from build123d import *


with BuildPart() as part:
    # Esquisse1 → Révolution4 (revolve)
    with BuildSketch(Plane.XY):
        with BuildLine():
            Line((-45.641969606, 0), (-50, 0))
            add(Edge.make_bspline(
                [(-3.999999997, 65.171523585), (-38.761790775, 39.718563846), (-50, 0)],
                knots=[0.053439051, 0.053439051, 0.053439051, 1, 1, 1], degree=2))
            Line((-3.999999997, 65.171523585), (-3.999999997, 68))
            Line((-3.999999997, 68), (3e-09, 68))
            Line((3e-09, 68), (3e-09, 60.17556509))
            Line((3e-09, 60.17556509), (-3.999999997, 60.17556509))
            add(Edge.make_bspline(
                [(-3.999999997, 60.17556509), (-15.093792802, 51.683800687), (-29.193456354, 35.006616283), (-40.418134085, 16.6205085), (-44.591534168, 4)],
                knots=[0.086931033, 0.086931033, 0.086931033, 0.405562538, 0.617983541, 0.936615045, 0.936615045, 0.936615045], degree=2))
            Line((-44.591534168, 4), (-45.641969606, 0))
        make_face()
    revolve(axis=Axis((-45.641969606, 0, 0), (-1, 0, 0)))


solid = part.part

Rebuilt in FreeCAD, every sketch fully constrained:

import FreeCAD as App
import Part
import Sketcher
from FreeCAD import Vector

doc = App.newDocument("Part")
body = doc.addObject("PartDesign::Body", "Body")

# Sketch on XY plane
sketch1 = doc.addObject("Sketcher::SketchObject", "Sketch")
body.addObject(sketch1)
sketch1.AttachmentSupport = (doc.XY_Plane, [""])
sketch1.MapMode = "FlatFace"
sketch1.addGeometry(Part.LineSegment(Vector(-50, 0, 0), Vector(-45.64197, 0, 0)), False)
sketch1.addGeometry(Part.LineSegment(Vector(-45.64197, 0, 0), Vector(-44.591534, 4, 0)), False)
sketch1.addGeometry(Part.BSplineCurve([Vector(-4, 60.175565, 0), Vector(-15.093793, 51.683801, 0), Vector(-29.193456, 35.006616, 0), Vector(-40.418134, 16.620508, 0), Vector(-44.591534, 4, 0)], [3, 1, 1, 3], [0.086931033, 0.405562538, 0.617983541, 0.936615045], False, 2, [1, 1, 1, 1, 1], False), False)
sketch1.addGeometry(Part.LineSegment(Vector(-4, 60.175565, 0), Vector(0, 60.175565, 0)), False)
sketch1.addGeometry(Part.LineSegment(Vector(0, 60.175565, 0), Vector(0, 68, 0)), False)
sketch1.addGeometry(Part.LineSegment(Vector(0, 68, 0), Vector(-4, 68, 0)), False)
sketch1.addGeometry(Part.LineSegment(Vector(-4, 68, 0), Vector(-4, 65.171524, 0)), False)
sketch1.addGeometry(Part.BSplineCurve([Vector(-4, 65.171524, 0), Vector(-38.761791, 39.718564, 0), Vector(-50, 0, 0)], [3, 3], [0.053439051, 1], False, 2, [1, 1, 1], False), False)
sketch1.addConstraint(Sketcher.Constraint("Block", 2))
sketch1.addConstraint(Sketcher.Constraint("Block", 7))
sketch1.addConstraint(Sketcher.Constraint("Coincident", 0, 2, 1, 1))
sketch1.addConstraint(Sketcher.Constraint("Coincident", 1, 2, 2, 2))
sketch1.addConstraint(Sketcher.Constraint("Coincident", 2, 1, 3, 1))
sketch1.addConstraint(Sketcher.Constraint("Coincident", 3, 2, 4, 1))
sketch1.addConstraint(Sketcher.Constraint("Coincident", 4, 2, 5, 1))
sketch1.addConstraint(Sketcher.Constraint("Coincident", 5, 2, 6, 1))
sketch1.addConstraint(Sketcher.Constraint("Coincident", 6, 2, 7, 1))
sketch1.addConstraint(Sketcher.Constraint("Coincident", 7, 2, 0, 1))
sketch1.addConstraint(Sketcher.Constraint("Horizontal", 0))
sketch1.addConstraint(Sketcher.Constraint("Horizontal", 3))
sketch1.addConstraint(Sketcher.Constraint("Vertical", 4))
sketch1.addConstraint(Sketcher.Constraint("Horizontal", 5))
sketch1.addConstraint(Sketcher.Constraint("Vertical", 6))
sketch1.addConstraint(Sketcher.Constraint("PointOnObject", 3, 2, -2))
sketch1.addConstraint(Sketcher.Constraint("DistanceY", -1, 1, 4, 2, 68.0))
sketch1.addConstraint(Sketcher.Constraint("DistanceX", 0, 1, 0, 2, 4.35803))
revolution = doc.addObject("PartDesign::Revolution", "Revolution")
body.addObject(revolution)
revolution.Profile = sketch1
revolution.ReferenceAxis = (sketch1, ["H_Axis"])
revolution.Angle = 360

doc.recompute()
